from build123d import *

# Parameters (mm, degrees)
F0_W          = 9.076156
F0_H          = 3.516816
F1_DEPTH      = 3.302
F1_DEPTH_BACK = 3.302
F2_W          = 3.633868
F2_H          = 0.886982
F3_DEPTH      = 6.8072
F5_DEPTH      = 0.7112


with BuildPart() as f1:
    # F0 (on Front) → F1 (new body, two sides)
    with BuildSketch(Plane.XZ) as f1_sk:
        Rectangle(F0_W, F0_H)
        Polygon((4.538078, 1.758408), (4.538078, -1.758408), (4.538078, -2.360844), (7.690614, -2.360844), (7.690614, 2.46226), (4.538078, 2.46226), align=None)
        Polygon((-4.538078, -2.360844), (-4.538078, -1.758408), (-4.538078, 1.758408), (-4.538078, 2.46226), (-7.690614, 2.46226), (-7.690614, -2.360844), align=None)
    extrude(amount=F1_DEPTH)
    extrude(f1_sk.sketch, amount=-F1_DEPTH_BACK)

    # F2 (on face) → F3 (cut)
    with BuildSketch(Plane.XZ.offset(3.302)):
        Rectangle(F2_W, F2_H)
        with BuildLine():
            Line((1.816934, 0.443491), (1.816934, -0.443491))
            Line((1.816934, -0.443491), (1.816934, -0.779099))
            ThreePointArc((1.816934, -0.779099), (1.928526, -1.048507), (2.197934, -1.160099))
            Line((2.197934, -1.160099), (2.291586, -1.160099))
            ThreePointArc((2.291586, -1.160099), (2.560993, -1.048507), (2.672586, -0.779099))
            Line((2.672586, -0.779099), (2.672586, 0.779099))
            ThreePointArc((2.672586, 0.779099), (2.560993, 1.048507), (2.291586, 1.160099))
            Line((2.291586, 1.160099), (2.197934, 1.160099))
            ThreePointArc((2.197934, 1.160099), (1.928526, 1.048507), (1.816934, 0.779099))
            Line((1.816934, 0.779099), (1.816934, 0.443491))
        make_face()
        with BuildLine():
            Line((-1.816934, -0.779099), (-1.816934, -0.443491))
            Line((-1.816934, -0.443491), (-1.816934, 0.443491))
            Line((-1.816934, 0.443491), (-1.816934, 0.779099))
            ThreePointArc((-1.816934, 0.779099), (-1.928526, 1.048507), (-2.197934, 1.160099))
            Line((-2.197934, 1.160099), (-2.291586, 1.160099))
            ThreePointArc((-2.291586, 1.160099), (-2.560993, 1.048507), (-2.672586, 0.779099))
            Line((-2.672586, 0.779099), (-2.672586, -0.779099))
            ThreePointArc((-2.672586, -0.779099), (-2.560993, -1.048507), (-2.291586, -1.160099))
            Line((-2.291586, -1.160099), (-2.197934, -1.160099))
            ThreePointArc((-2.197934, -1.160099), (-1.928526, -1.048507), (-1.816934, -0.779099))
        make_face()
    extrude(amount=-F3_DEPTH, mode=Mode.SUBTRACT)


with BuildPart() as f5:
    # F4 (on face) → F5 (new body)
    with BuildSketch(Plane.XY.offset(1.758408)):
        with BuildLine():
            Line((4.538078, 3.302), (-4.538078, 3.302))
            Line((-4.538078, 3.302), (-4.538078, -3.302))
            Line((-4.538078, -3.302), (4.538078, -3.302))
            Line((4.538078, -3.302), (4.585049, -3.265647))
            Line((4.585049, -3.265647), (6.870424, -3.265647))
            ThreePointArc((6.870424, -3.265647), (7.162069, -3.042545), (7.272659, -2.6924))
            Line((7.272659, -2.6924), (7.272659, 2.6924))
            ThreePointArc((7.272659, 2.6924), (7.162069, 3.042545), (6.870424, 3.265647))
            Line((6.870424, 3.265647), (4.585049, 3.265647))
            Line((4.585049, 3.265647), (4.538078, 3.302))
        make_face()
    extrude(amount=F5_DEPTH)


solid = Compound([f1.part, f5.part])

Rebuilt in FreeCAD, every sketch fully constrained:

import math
import FreeCAD as App
import Part
import Sketcher
Q = App.Units.Quantity

doc = App.newDocument("Part")
body = doc.addObject("PartDesign::Body", "Body")

sketch1 = body.newObject("Sketcher::SketchObject", "Sketch")
sketch1.AttachmentSupport = (doc.getObject("XZ_Plane"), [""])
sketch1.MapMode = "FlatFace"
sketch1.addGeometry(Part.LineSegment(App.Vector(-4.5, -1.8, 0), App.Vector(4.5, -1.8, 0)), False)
sketch1.addGeometry(Part.LineSegment(App.Vector(4.5, -1.8, 0), App.Vector(4.5, -2.4, 0)), False)
sketch1.addGeometry(Part.LineSegment(App.Vector(4.5, -2.4, 0), App.Vector(7.7, -2.4, 0)), False)
sketch1.addGeometry(Part.LineSegment(App.Vector(7.7, -2.4, 0), App.Vector(7.7, 2.5, 0)), False)
sketch1.addGeometry(Part.LineSegment(App.Vector(7.7, 2.5, 0), App.Vector(4.5, 2.5, 0)), False)
sketch1.addGeometry(Part.LineSegment(App.Vector(4.5, 2.5, 0), App.Vector(4.5, 1.8, 0)), False)
sketch1.addGeometry(Part.LineSegment(App.Vector(4.5, 1.8, 0), App.Vector(-4.5, 1.8, 0)), False)
sketch1.addGeometry(Part.LineSegment(App.Vector(-4.5, 1.8, 0), App.Vector(-4.5, 2.5, 0)), False)
sketch1.addGeometry(Part.LineSegment(App.Vector(-4.5, 2.5, 0), App.Vector(-7.7, 2.5, 0)), False)
sketch1.addGeometry(Part.LineSegment(App.Vector(-7.7, 2.5, 0), App.Vector(-7.7, -2.4, 0)), False)
sketch1.addGeometry(Part.LineSegment(App.Vector(-7.7, -2.4, 0), App.Vector(-4.5, -2.4, 0)), False)
sketch1.addGeometry(Part.LineSegment(App.Vector(-4.5, -2.4, 0), App.Vector(-4.5, -1.8, 0)), False)
sketch1.addConstraint(Sketcher.Constraint("Coincident", 0, 2, 1, 1))
sketch1.addConstraint(Sketcher.Constraint("Coincident", 1, 2, 2, 1))
sketch1.addConstraint(Sketcher.Constraint("Coincident", 2, 2, 3, 1))
sketch1.addConstraint(Sketcher.Constraint("Coincident", 3, 2, 4, 1))
sketch1.addConstraint(Sketcher.Constraint("Coincident", 4, 2, 5, 1))
sketch1.addConstraint(Sketcher.Constraint("Coincident", 5, 2, 6, 1))
sketch1.addConstraint(Sketcher.Constraint("Coincident", 6, 2, 7, 1))
sketch1.addConstraint(Sketcher.Constraint("Coincident", 7, 2, 8, 1))
sketch1.addConstraint(Sketcher.Constraint("Coincident", 8, 2, 9, 1))
sketch1.addConstraint(Sketcher.Constraint("Coincident", 9, 2, 10, 1))
sketch1.addConstraint(Sketcher.Constraint("Coincident", 10, 2, 11, 1))
sketch1.addConstraint(Sketcher.Constraint("Coincident", 11, 2, 0, 1))
sketch1.addConstraint(Sketcher.Constraint("Horizontal", 0))
sketch1.addConstraint(Sketcher.Constraint("Vertical", 1))
sketch1.addConstraint(Sketcher.Constraint("Horizontal", 2))
sketch1.addConstraint(Sketcher.Constraint("Vertical", 3))
sketch1.addConstraint(Sketcher.Constraint("Horizontal", 4))
sketch1.addConstraint(Sketcher.Constraint("Vertical", 5))
sketch1.addConstraint(Sketcher.Constraint("Horizontal", 6))
sketch1.addConstraint(Sketcher.Constraint("Vertical", 7))
sketch1.addConstraint(Sketcher.Constraint("Horizontal", 8))
sketch1.addConstraint(Sketcher.Constraint("Vertical", 9))
sketch1.addConstraint(Sketcher.Constraint("Horizontal", 10))
sketch1.addConstraint(Sketcher.Constraint("Vertical", 11))
sketch1.addConstraint(Sketcher.Constraint("Symmetric", 0, 2, 6, 2, -1, 1))
sketch1.addConstraint(Sketcher.Constraint("Symmetric", 4, 2, 7, 2, -2))
sketch1.addConstraint(Sketcher.Constraint("Symmetric", 2, 2, 9, 2, -2))
sketch1.addConstraint(Sketcher.Constraint("Vertical", 7, 2, 10, 2))
sketch1.addConstraint(Sketcher.Constraint("DistanceX", 0, 1, 0, 2, 9.076156))
sketch1.addConstraint(Sketcher.Constraint("DistanceX", 2, 1, 2, 2, 3.152536))
sketch1.addConstraint(Sketcher.Constraint("DistanceY", 1, 2, 1, 1, 0.602436))
sketch1.addConstraint(Sketcher.Constraint("DistanceY", 3, 1, 3, 2, 4.823104))
sketch1.addConstraint(Sketcher.Constraint("DistanceY", 5, 2, 5, 1, 0.703852))
pad1 = body.newObject("PartDesign::Pad", "Pad")
pad1.Profile = sketch1
pad1.Type = "TwoLengths"
pad1.Length = Q("0.13 in")
pad1.Length2 = Q("0.13 in")

sketch2 = body.newObject("Sketcher::SketchObject", "Sketch001")
sketch2.AttachmentSupport = (doc.getObject("XZ_Plane"), [""])
sketch2.MapMode = "FlatFace"
sketch2.AttachmentOffset = App.Placement(App.Vector(0, 0, 0.13 * 25.4), App.Rotation())
sketch2.addGeometry(Part.LineSegment(App.Vector(-1.82, -0.44, 0), App.Vector(1.82, -0.44, 0)), False)
sketch2.addGeometry(Part.LineSegment(App.Vector(1.82, -0.44, 0), App.Vector(1.82, -0.78, 0)), False)
sketch2.addGeometry(Part.ArcOfCircle(Part.Circle(App.Vector(2.2, -0.78, 0), App.Vector(0, 0, 1), 0.38), math.radians(180), math.radians(270)), False)
sketch2.addGeometry(Part.LineSegment(App.Vector(2.2, -1.16, 0), App.Vector(2.29, -1.16, 0)), False)
sketch2.addGeometry(Part.ArcOfCircle(Part.Circle(App.Vector(2.29, -0.78, 0), App.Vector(0, 0, 1), 0.38), math.radians(-90), math.radians(0)), False)
sketch2.addGeometry(Part.LineSegment(App.Vector(2.67, -0.78, 0), App.Vector(2.67, 0.78, 0)), False)
sketch2.addGeometry(Part.ArcOfCircle(Part.Circle(App.Vector(2.29, 0.78, 0), App.Vector(0, 0, 1), 0.38), math.radians(0), math.radians(90)), False)
sketch2.addGeometry(Part.LineSegment(App.Vector(2.29, 1.16, 0), App.Vector(2.2, 1.16, 0)), False)
sketch2.addGeometry(Part.ArcOfCircle(Part.Circle(App.Vector(2.2, 0.78, 0), App.Vector(0, 0, 1), 0.38), math.radians(90), math.radians(180)), False)
sketch2.addGeometry(Part.LineSegment(App.Vector(1.82, 0.78, 0), App.Vector(1.82, 0.44, 0)), False)
sketch2.addGeometry(Part.LineSegment(App.Vector(1.82, 0.44, 0), App.Vector(-1.82, 0.44, 0)), False)
sketch2.addGeometry(Part.LineSegment(App.Vector(-1.82, 0.44, 0), App.Vector(-1.82, 0.78, 0)), False)
sketch2.addGeometry(Part.ArcOfCircle(Part.Circle(App.Vector(-2.2, 0.78, 0), App.Vector(0, 0, 1), 0.38), math.radians(0), math.radians(90)), False)
sketch2.addGeometry(Part.LineSegment(App.Vector(-2.2, 1.16, 0), App.Vector(-2.29, 1.16, 0)), False)
sketch2.addGeometry(Part.ArcOfCircle(Part.Circle(App.Vector(-2.29, 0.78, 0), App.Vector(0, 0, 1), 0.38), math.radians(90), math.radians(180)), False)
sketch2.addGeometry(Part.LineSegment(App.Vector(-2.67, 0.78, 0), App.Vector(-2.67, -0.78, 0)), False)
sketch2.addGeometry(Part.ArcOfCircle(Part.Circle(App.Vector(-2.29, -0.78, 0), App.Vector(0, 0, 1), 0.38), math.radians(-180), math.radians(-90)), False)
sketch2.addGeometry(Part.LineSegment(App.Vector(-2.29, -1.16, 0), App.Vector(-2.2, -1.16, 0)), False)
sketch2.addGeometry(Part.ArcOfCircle(Part.Circle(App.Vector(-2.2, -0.78, 0), App.Vector(0, 0, 1), 0.38), math.radians(-90), math.radians(0)), False)
sketch2.addGeometry(Part.LineSegment(App.Vector(-1.82, -0.78, 0), App.Vector(-1.82, -0.44, 0)), False)
sketch2.addConstraint(Sketcher.Constraint("Coincident", 0, 2, 1, 1))
sketch2.addConstraint(Sketcher.Constraint("Coincident", 1, 2, 2, 1))
sketch2.addConstraint(Sketcher.Constraint("Coincident", 2, 2, 3, 1))
sketch2.addConstraint(Sketcher.Constraint("Tangent", 3, 2, 4, 1))
sketch2.addConstraint(Sketcher.Constraint("Tangent", 4, 2, 5, 1))
sketch2.addConstraint(Sketcher.Constraint("Tangent", 5, 2, 6, 1))
sketch2.addConstraint(Sketcher.Constraint("Tangent", 6, 2, 7, 1))
sketch2.addConstraint(Sketcher.Constraint("Coincident", 7, 2, 8, 1))
sketch2.addConstraint(Sketcher.Constraint("Coincident", 8, 2, 9, 1))
sketch2.addConstraint(Sketcher.Constraint("Coincident", 9, 2, 10, 1))
sketch2.addConstraint(Sketcher.Constraint("Coincident", 10, 2, 11, 1))
sketch2.addConstraint(Sketcher.Constraint("Coincident", 11, 2, 12, 1))
sketch2.addConstraint(Sketcher.Constraint("Coincident", 12, 2, 13, 1))
sketch2.addConstraint(Sketcher.Constraint("Tangent", 13, 2, 14, 1))
sketch2.addConstraint(Sketcher.Constraint("Tangent", 14, 2, 15, 1))
sketch2.addConstraint(Sketcher.Constraint("Tangent", 15, 2, 16, 1))
sketch2.addConstraint(Sketcher.Constraint("Tangent", 16, 2, 17, 1))
sketch2.addConstraint(Sketcher.Constraint("Coincident", 17, 2, 18, 1))
sketch2.addConstraint(Sketcher.Constraint("Coincident", 18, 2, 19, 1))
sketch2.addConstraint(Sketcher.Constraint("Coincident", 19, 2, 0, 1))
sketch2.addConstraint(Sketcher.Constraint("Horizontal", 0))
sketch2.addConstraint(Sketcher.Constraint("Vertical", 1))
sketch2.addConstraint(Sketcher.Constraint("Horizontal", 3))
sketch2.addConstraint(Sketcher.Constraint("Vertical", 5))
sketch2.addConstraint(Sketcher.Constraint("Horizontal", 7))
sketch2.addConstraint(Sketcher.Constraint("Vertical", 9))
sketch2.addConstraint(Sketcher.Constraint("Horizontal", 10))
sketch2.addConstraint(Sketcher.Constraint("Vertical", 11))
sketch2.addConstraint(Sketcher.Constraint("Horizontal", 13))
sketch2.addConstraint(Sketcher.Constraint("Vertical", 15))
sketch2.addConstraint(Sketcher.Constraint("Horizontal", 17))
sketch2.addConstraint(Sketcher.Constraint("Vertical", 19))
sketch2.addConstraint(Sketcher.Constraint("Equal", 2, 4))
sketch2.addConstraint(Sketcher.Constraint("Equal", 4, 6))
sketch2.addConstraint(Sketcher.Constraint("Equal", 6, 8))
sketch2.addConstraint(Sketcher.Constraint("Equal", 8, 12))
sketch2.addConstraint(Sketcher.Constraint("Equal", 12, 14))
sketch2.addConstraint(Sketcher.Constraint("Equal", 14, 16))
sketch2.addConstraint(Sketcher.Constraint("Equal", 16, 18))
sketch2.addConstraint(Sketcher.Constraint("Symmetric", 2, 3, 12, 3, -1, 1))
sketch2.addConstraint(Sketcher.Constraint("Symmetric", 6, 3, 16, 3, -1, 1))
sketch2.addConstraint(Sketcher.Constraint("Symmetric", 8, 2, 18, 2, -1, 1))
sketch2.addConstraint(Sketcher.Constraint("Symmetric", 8, 3, 12, 3, -2))
sketch2.addConstraint(Sketcher.Constraint("Horizontal", 18, 3, 1, 2))
sketch2.addConstraint(Sketcher.Constraint("Horizontal", 5, 2, 8, 2))
sketch2.addConstraint(Sketcher.Constraint("Horizontal", 8, 2, 11, 2))
sketch2.addConstraint(Sketcher.Constraint("Vertical", 8, 3, 2, 2))
sketch2.addConstraint(Sketcher.Constraint("Vertical", 2, 2, 7, 2))
sketch2.addConstraint(Sketcher.Constraint("Vertical", 18, 3, 12, 2))
sketch2.addConstraint(Sketcher.Constraint("Vertical", 12, 2, 17, 2))
sketch2.addConstraint(Sketcher.Constraint("Equal", 1, 9))
sketch2.addConstraint(Sketcher.Constraint("Radius", 2, Q("0.015 in")))
sketch2.addConstraint(Sketcher.Constraint("DistanceX", 0, 1, 0, 2, 3.633868))
sketch2.addConstraint(Sketcher.Constraint("DistanceY", 2, 3, -1, 1, 0.7791))
sketch2.addConstraint(Sketcher.Constraint("DistanceX", 3, 1, 3, 2, 0.093652))
sketch2.addConstraint(Sketcher.Constraint("DistanceY", 1, 2, 1, 1, 0.335608))
pocket1 = body.newObject("PartDesign::Pocket", "Pocket")
pocket1.Profile = sketch2
pocket1.Length = Q("0.268 in")
body2 = doc.addObject("PartDesign::Body", "Body001")

sketch3 = body2.newObject("Sketcher::SketchObject", "Sketch002")
sketch3.AttachmentSupport = (doc.getObject("XY_Plane001"), [""])
sketch3.MapMode = "FlatFace"
sketch3.AttachmentOffset = App.Placement(App.Vector(0, 0, 1.758408), App.Rotation())
sketch3.addGeometry(Part.LineSegment(App.Vector(4.54, 3.3, 0), App.Vector(-4.54, 3.3, 0)), False)
sketch3.addGeometry(Part.LineSegment(App.Vector(-4.54, 3.3, 0), App.Vector(-4.54, -3.3, 0)), False)
sketch3.addGeometry(Part.LineSegment(App.Vector(-4.54, -3.3, 0), App.Vector(4.54, -3.3, 0)), False)
sketch3.addGeometry(Part.LineSegment(App.Vector(4.54, -3.3, 0), App.Vector(4.59, -3.27, 0)), False)
sketch3.addGeometry(Part.LineSegment(App.Vector(4.59, -3.27, 0), App.Vector(6.87, -3.27, 0)), False)
sketch3.addGeometry(Part.ArcOfCircle(Part.Circle(App.Vector(6.66, -2.69, 0), App.Vector(0, 0, 1), 0.61), math.radians(-70), math.radians(0)), False)
sketch3.addGeometry(Part.LineSegment(App.Vector(7.27, -2.69, 0), App.Vector(7.27, 2.69, 0)), False)
sketch3.addGeometry(Part.ArcOfCircle(Part.Circle(App.Vector(6.66, 2.69, 0), App.Vector(0, 0, 1), 0.61), math.radians(0), math.radians(70)), False)
sketch3.addGeometry(Part.LineSegment(App.Vector(6.87, 3.27, 0), App.Vector(4.59, 3.27, 0)), False)
sketch3.addGeometry(Part.LineSegment(App.Vector(4.59, 3.27, 0), App.Vector(4.54, 3.3, 0)), False)
sketch3.addConstraint(Sketcher.Constraint("Coincident", 0, 2, 1, 1))
sketch3.addConstraint(Sketcher.Constraint("Coincident", 1, 2, 2, 1))
sketch3.addConstraint(Sketcher.Constraint("Coincident", 2, 2, 3, 1))
sketch3.addConstraint(Sketcher.Constraint("Coincident", 3, 2, 4, 1))
sketch3.addConstraint(Sketcher.Constraint("Coincident", 4, 2, 5, 1))
sketch3.addConstraint(Sketcher.Constraint("Tangent", 5, 2, 6, 1))
sketch3.addConstraint(Sketcher.Constraint("Tangent", 6, 2, 7, 1))
sketch3.addConstraint(Sketcher.Constraint("Coincident", 7, 2, 8, 1))
sketch3.addConstraint(Sketcher.Constraint("Coincident", 8, 2, 9, 1))
sketch3.addConstraint(Sketcher.Constraint("Coincident", 9, 2, 0, 1))
sketch3.addConstraint(Sketcher.Constraint("Horizontal", 0))
sketch3.addConstraint(Sketcher.Constraint("Vertical", 1))
sketch3.addConstraint(Sketcher.Constraint("Horizontal", 2))
sketch3.addConstraint(Sketcher.Constraint("Horizontal", 4))
sketch3.addConstraint(Sketcher.Constraint("Vertical", 6))
sketch3.addConstraint(Sketcher.Constraint("Horizontal", 8))
sketch3.addConstraint(Sketcher.Constraint("Equal", 5, 7))
sketch3.addConstraint(Sketcher.Constraint("Symmetric", 0, 2, 2, 2, -1, 1))
sketch3.addConstraint(Sketcher.Constraint("Symmetric", 4, 2, 7, 2, -1))
sketch3.addConstraint(Sketcher.Constraint("Vertical", 3, 2, 8, 2))
sketch3.addConstraint(Sketcher.Constraint("Vertical", 2, 2, 9, 2))
sketch3.addConstraint(Sketcher.Constraint("Radius", 5, Q("0.024 in")))
sketch3.addConstraint(Sketcher.Constraint("DistanceY", 1, 2, 1, 1, Q("0.26 in")))
sketch3.addConstraint(Sketcher.Constraint("DistanceY", 6, 1, 6, 2, Q("0.212 in")))
sketch3.addConstraint(Sketcher.Constraint("DistanceX", 1, 2, 4, 2, 11.408502))
sketch3.addConstraint(Sketcher.Constraint("DistanceX", 0, 2, 0, 1, 9.076156))
sketch3.addConstraint(Sketcher.Constraint("DistanceX", 4, 1, 4, 2, 2.285375))
sketch3.addConstraint(Sketcher.Constraint("DistanceX", -1, 1, 5, 3, 6.66306))
pad2 = body2.newObject("PartDesign::Pad", "Pad001")
pad2.Profile = sketch3
pad2.Length = Q("0.028 in")

doc.recompute()
